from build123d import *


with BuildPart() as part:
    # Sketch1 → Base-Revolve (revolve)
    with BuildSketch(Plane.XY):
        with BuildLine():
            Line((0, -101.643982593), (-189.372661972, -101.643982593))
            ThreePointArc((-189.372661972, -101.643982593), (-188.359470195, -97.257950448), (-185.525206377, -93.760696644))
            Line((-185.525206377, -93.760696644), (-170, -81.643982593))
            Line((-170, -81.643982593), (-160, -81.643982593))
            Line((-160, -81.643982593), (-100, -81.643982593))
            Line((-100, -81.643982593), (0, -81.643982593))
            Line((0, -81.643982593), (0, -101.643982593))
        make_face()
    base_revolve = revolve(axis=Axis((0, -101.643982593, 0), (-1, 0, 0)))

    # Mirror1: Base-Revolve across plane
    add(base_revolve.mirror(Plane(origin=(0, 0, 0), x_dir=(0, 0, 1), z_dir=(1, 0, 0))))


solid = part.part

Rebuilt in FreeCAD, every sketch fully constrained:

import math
import FreeCAD as App
import Part
import Sketcher

V = App.Vector

doc = App.newDocument("Part")
params = doc.addObject("Spreadsheet::Sheet", "Params")
for row, (alias, value) in enumerate([
    ("sketch1_radius", "10 mm"),
    ("sketch1_width", "170 mm"),
    ("sketch1_height", "20 mm"),
    ("revolution_angle", "360 deg"),
], start=1):
    params.set(f"A{row}", alias)
    params.set(f"B{row}", "=" + value)
    params.setAlias(f"B{row}", alias)

body = doc.addObject("PartDesign::Body", "Body")

sketch1 = body.newObject("Sketcher::SketchObject", "Sketch")
sketch1.AttachmentSupport = (doc.getObject("XY_Plane"), [""])
sketch1.MapMode = "FlatFace"
sketch1.addGeometry([
    Part.LineSegment(V(-189, -102, 0), V(0, -102, 0)),
    Part.LineSegment(V(0, -102, 0), V(0, -82, 0)),
    Part.LineSegment(V(0, -82, 0), V(-170, -82, 0)),
    Part.LineSegment(V(-170, -82, 0), V(-186, -94, 0)),
    Part.ArcOfCircle(Part.Circle(V(-179, -102, 0), V(0, 0, 1), 10), math.radians(128), math.radians(180)),
], False)
sketch1.addGeometry(Part.LineSegment(V(0, -102, 0), V(-189, -102, 0)), True)
sketch1.addConstraint([
    Sketcher.Constraint("Coincident", 0, 2, 1, 1),
    Sketcher.Constraint("Coincident", 1, 2, 2, 1),
    Sketcher.Constraint("Coincident", 2, 2, 3, 1),
    Sketcher.Constraint("Tangent", 3, 2, 4, 1),
    Sketcher.Constraint("Coincident", 4, 2, 0, 1),
    Sketcher.Constraint("Horizontal", 0),
    Sketcher.Constraint("Vertical", 1),
    Sketcher.Constraint("Horizontal", 2),
    Sketcher.Constraint("Horizontal", 5),
    Sketcher.Constraint("Coincident", 5, 1, 0, 2),
    Sketcher.Constraint("PointOnObject", 0, 2, -2),
    Sketcher.Constraint("Horizontal", 4, 3, 0, 2),
    Sketcher.Constraint("Equal", 0, 5),
    Sketcher.Constraint("Radius", 4, 10.0),
    Sketcher.Constraint("DistanceX", 2, 2, 2, 1, 170.0),
    Sketcher.Constraint("DistanceY", 1, 1, 1, 2, 20.0),
    Sketcher.Constraint("DistanceX", 0, 1, 0, 2, 189.372662),
    Sketcher.Constraint("DistanceY", 4, 3, -1, 1, 101.643983),
])
sketch1.setExpression("Constraints[13]", "Params.sketch1_radius")
sketch1.setExpression("Constraints[14]", "Params.sketch1_width")
sketch1.setExpression("Constraints[15]", "Params.sketch1_height")
revolution = body.newObject("PartDesign::Revolution", "Revolution")
revolution.Profile = sketch1
revolution.ReferenceAxis = (sketch1, ["Axis0"])
revolution.setExpression("Angle", "Params.revolution_angle")
doc.recompute()

mirrored = body.newObject("PartDesign::Mirrored", "Mirrored")
mirrored.Originals = [revolution]
mirrored.MirrorPlane = (doc.getObject("YZ_Plane"), [""])
body.Tip = mirrored

doc.recompute()
